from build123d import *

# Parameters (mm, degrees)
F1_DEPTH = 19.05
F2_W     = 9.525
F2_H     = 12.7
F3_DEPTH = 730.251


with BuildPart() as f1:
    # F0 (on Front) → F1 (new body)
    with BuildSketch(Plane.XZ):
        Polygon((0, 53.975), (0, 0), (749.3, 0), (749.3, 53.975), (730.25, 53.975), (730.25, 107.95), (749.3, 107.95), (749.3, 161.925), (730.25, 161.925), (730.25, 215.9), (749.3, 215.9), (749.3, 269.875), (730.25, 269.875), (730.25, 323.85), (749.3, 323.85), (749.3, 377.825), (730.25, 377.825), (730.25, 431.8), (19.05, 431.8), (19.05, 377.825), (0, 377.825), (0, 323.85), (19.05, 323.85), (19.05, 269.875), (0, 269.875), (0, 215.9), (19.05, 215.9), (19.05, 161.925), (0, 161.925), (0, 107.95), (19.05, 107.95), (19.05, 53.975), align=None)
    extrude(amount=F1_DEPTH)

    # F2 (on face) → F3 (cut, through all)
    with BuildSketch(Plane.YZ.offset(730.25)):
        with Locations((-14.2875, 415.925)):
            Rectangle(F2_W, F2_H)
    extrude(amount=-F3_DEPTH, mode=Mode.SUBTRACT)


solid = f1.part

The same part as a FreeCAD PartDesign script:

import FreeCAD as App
import Part
import Sketcher
from FreeCAD import Vector
Q = App.Units.Quantity


def add_polygon(sketch, points):
    """Adds a closed chain of lines whose ends are joined by coincident constraints."""
    first, n = sketch.GeometryCount, len(points)
    for a, b in zip(points, points[1:] + points[:1]):
        sketch.addGeometry(Part.LineSegment(App.Vector(*a, 0), App.Vector(*b, 0)), False)
    for i in range(n):
        sketch.addConstraint(Sketcher.Constraint("Coincident", first + i, 2, first + (i + 1) % n, 1))

doc = App.newDocument("Part")
body = doc.addObject("PartDesign::Body", "Body")

sketch1 = body.newObject("Sketcher::SketchObject", "Sketch")
sketch1.AttachmentSupport = (doc.getObject("XZ_Plane"), [""])
sketch1.MapMode = "FlatFace"
add_polygon(sketch1, [(0, 53.975), (0, 0), (749.3, 0), (749.3, 53.975), (730.25, 53.975), (730.25, 107.95), (749.3, 107.95), (749.3, 161.925), (730.25, 161.925), (730.25, 215.9), (749.3, 215.9), (749.3, 269.875), (730.25, 269.875), (730.25, 323.85), (749.3, 323.85), (749.3, 377.825), (730.25, 377.825), (730.25, 431.8), (19.05, 431.8), (19.05, 377.825), (0, 377.825), (0, 323.85), (19.05, 323.85), (19.05, 269.875), (0, 269.875), (0, 215.9), (19.05, 215.9), (19.05, 161.925), (0, 161.925), (0, 107.95), (19.05, 107.95), (19.05, 53.975)])
sketch1.addConstraint([
    Sketcher.Constraint("Vertical", 0),
    Sketcher.Constraint("Horizontal", 1),
    Sketcher.Constraint("Vertical", 2),
    Sketcher.Constraint("Horizontal", 3),
    Sketcher.Constraint("Vertical", 4),
    Sketcher.Constraint("Horizontal", 5),
    Sketcher.Constraint("Vertical", 6),
    Sketcher.Constraint("Horizontal", 7),
    Sketcher.Constraint("Vertical", 8),
    Sketcher.Constraint("Horizontal", 9),
    Sketcher.Constraint("Vertical", 10),
    Sketcher.Constraint("Horizontal", 11),
    Sketcher.Constraint("Vertical", 12),
    Sketcher.Constraint("Horizontal", 13),
    Sketcher.Constraint("Vertical", 14),
    Sketcher.Constraint("Horizontal", 15),
    Sketcher.Constraint("Vertical", 16),
    Sketcher.Constraint("Horizontal", 17),
    Sketcher.Constraint("Vertical", 18),
    Sketcher.Constraint("Horizontal", 19),
    Sketcher.Constraint("Vertical", 20),
    Sketcher.Constraint("Horizontal", 21),
    Sketcher.Constraint("Vertical", 22),
    Sketcher.Constraint("Horizontal", 23),
    Sketcher.Constraint("Vertical", 24),
    Sketcher.Constraint("Horizontal", 25),
    Sketcher.Constraint("Vertical", 26),
    Sketcher.Constraint("Horizontal", 27),
    Sketcher.Constraint("Vertical", 28),
    Sketcher.Constraint("Horizontal", 29),
    Sketcher.Constraint("Vertical", 30),
    Sketcher.Constraint("Horizontal", 31),
    Sketcher.Constraint("Coincident", 0, 2, -1, 1),
    Sketcher.Constraint("PointOnObject", 19, 2, -2),
    Sketcher.Constraint("PointOnObject", 23, 2, -2),
    Sketcher.Constraint("PointOnObject", 27, 2, -2),
    Sketcher.Constraint("Horizontal", 15, 2, 18, 2),
    Sketcher.Constraint("Horizontal", 13, 2, 20, 2),
    Sketcher.Constraint("Horizontal", 11, 2, 22, 2),
    Sketcher.Constraint("Horizontal", 9, 2, 24, 2),
    Sketcher.Constraint("Horizontal", 7, 2, 26, 2),
    Sketcher.Constraint("Horizontal", 5, 2, 28, 2),
    Sketcher.Constraint("Horizontal", 3, 2, 30, 2),
    Sketcher.Constraint("Vertical", 2, 2, 5, 2),
    Sketcher.Constraint("Vertical", 4, 2, 7, 2),
    Sketcher.Constraint("Vertical", 6, 2, 9, 2),
    Sketcher.Constraint("Vertical", 8, 2, 11, 2),
    Sketcher.Constraint("Vertical", 10, 2, 13, 2),
    Sketcher.Constraint("Vertical", 12, 2, 15, 2),
    Sketcher.Constraint("Vertical", 18, 2, 21, 2),
    Sketcher.Constraint("Vertical", 22, 2, 25, 2),
    Sketcher.Constraint("Vertical", 26, 2, 29, 2),
    Sketcher.Constraint("Equal", 15, 19),
    Sketcher.Constraint("Equal", 2, 4),
    Sketcher.Constraint("Equal", 4, 6),
    Sketcher.Constraint("Equal", 6, 8),
    Sketcher.Constraint("Equal", 8, 10),
    Sketcher.Constraint("Equal", 10, 12),
    Sketcher.Constraint("Equal", 12, 14),
    Sketcher.Constraint("Equal", 14, 16),
    Sketcher.Constraint("DistanceX", 17, 2, 17, 1, Q("28 in")),
    Sketcher.Constraint("DistanceX", 1, 1, 1, 2, Q("29.5 in")),
    Sketcher.Constraint("DistanceY", -1, 1, 16, 2, Q("17 in")),
])
pad1 = body.newObject("PartDesign::Pad", "Pad")
pad1.Profile = sketch1
pad1.Length = Q("0.75 in")

sketch2 = body.newObject("Sketcher::SketchObject", "Sketch001")
sketch2.AttachmentSupport = (doc.getObject("YZ_Plane"), [""])
sketch2.MapMode = "FlatFace"
sketch2.AttachmentOffset = App.Placement(Vector(0, 0, 28.75 * 25.4), App.Rotation())
add_polygon(sketch2, [(-19.05, 422.275), (-19.05, 409.575), (-9.525, 409.575), (-9.525, 422.275)])
sketch2.addConstraint([
    Sketcher.Constraint("Vertical", 0),
    Sketcher.Constraint("Horizontal", 1),
    Sketcher.Constraint("Vertical", 2),
    Sketcher.Constraint("Horizontal", 3),
    Sketcher.Constraint("DistanceY", 0, 2, 0, 1, Q("0.5 in")),
    Sketcher.Constraint("DistanceX", 1, 1, 1, 2, Q("0.375 in")),
    Sketcher.Constraint("DistanceX", 0, 2, -1, 1, Q("0.75 in")),
    Sketcher.Constraint("DistanceY", -1, 1, 0, 2, Q("16.125 in")),
])
pocket1 = body.newObject("PartDesign::Pocket", "Pocket")
pocket1.Profile = sketch2
pocket1.Type = "ThroughAll"

doc.recompute()
